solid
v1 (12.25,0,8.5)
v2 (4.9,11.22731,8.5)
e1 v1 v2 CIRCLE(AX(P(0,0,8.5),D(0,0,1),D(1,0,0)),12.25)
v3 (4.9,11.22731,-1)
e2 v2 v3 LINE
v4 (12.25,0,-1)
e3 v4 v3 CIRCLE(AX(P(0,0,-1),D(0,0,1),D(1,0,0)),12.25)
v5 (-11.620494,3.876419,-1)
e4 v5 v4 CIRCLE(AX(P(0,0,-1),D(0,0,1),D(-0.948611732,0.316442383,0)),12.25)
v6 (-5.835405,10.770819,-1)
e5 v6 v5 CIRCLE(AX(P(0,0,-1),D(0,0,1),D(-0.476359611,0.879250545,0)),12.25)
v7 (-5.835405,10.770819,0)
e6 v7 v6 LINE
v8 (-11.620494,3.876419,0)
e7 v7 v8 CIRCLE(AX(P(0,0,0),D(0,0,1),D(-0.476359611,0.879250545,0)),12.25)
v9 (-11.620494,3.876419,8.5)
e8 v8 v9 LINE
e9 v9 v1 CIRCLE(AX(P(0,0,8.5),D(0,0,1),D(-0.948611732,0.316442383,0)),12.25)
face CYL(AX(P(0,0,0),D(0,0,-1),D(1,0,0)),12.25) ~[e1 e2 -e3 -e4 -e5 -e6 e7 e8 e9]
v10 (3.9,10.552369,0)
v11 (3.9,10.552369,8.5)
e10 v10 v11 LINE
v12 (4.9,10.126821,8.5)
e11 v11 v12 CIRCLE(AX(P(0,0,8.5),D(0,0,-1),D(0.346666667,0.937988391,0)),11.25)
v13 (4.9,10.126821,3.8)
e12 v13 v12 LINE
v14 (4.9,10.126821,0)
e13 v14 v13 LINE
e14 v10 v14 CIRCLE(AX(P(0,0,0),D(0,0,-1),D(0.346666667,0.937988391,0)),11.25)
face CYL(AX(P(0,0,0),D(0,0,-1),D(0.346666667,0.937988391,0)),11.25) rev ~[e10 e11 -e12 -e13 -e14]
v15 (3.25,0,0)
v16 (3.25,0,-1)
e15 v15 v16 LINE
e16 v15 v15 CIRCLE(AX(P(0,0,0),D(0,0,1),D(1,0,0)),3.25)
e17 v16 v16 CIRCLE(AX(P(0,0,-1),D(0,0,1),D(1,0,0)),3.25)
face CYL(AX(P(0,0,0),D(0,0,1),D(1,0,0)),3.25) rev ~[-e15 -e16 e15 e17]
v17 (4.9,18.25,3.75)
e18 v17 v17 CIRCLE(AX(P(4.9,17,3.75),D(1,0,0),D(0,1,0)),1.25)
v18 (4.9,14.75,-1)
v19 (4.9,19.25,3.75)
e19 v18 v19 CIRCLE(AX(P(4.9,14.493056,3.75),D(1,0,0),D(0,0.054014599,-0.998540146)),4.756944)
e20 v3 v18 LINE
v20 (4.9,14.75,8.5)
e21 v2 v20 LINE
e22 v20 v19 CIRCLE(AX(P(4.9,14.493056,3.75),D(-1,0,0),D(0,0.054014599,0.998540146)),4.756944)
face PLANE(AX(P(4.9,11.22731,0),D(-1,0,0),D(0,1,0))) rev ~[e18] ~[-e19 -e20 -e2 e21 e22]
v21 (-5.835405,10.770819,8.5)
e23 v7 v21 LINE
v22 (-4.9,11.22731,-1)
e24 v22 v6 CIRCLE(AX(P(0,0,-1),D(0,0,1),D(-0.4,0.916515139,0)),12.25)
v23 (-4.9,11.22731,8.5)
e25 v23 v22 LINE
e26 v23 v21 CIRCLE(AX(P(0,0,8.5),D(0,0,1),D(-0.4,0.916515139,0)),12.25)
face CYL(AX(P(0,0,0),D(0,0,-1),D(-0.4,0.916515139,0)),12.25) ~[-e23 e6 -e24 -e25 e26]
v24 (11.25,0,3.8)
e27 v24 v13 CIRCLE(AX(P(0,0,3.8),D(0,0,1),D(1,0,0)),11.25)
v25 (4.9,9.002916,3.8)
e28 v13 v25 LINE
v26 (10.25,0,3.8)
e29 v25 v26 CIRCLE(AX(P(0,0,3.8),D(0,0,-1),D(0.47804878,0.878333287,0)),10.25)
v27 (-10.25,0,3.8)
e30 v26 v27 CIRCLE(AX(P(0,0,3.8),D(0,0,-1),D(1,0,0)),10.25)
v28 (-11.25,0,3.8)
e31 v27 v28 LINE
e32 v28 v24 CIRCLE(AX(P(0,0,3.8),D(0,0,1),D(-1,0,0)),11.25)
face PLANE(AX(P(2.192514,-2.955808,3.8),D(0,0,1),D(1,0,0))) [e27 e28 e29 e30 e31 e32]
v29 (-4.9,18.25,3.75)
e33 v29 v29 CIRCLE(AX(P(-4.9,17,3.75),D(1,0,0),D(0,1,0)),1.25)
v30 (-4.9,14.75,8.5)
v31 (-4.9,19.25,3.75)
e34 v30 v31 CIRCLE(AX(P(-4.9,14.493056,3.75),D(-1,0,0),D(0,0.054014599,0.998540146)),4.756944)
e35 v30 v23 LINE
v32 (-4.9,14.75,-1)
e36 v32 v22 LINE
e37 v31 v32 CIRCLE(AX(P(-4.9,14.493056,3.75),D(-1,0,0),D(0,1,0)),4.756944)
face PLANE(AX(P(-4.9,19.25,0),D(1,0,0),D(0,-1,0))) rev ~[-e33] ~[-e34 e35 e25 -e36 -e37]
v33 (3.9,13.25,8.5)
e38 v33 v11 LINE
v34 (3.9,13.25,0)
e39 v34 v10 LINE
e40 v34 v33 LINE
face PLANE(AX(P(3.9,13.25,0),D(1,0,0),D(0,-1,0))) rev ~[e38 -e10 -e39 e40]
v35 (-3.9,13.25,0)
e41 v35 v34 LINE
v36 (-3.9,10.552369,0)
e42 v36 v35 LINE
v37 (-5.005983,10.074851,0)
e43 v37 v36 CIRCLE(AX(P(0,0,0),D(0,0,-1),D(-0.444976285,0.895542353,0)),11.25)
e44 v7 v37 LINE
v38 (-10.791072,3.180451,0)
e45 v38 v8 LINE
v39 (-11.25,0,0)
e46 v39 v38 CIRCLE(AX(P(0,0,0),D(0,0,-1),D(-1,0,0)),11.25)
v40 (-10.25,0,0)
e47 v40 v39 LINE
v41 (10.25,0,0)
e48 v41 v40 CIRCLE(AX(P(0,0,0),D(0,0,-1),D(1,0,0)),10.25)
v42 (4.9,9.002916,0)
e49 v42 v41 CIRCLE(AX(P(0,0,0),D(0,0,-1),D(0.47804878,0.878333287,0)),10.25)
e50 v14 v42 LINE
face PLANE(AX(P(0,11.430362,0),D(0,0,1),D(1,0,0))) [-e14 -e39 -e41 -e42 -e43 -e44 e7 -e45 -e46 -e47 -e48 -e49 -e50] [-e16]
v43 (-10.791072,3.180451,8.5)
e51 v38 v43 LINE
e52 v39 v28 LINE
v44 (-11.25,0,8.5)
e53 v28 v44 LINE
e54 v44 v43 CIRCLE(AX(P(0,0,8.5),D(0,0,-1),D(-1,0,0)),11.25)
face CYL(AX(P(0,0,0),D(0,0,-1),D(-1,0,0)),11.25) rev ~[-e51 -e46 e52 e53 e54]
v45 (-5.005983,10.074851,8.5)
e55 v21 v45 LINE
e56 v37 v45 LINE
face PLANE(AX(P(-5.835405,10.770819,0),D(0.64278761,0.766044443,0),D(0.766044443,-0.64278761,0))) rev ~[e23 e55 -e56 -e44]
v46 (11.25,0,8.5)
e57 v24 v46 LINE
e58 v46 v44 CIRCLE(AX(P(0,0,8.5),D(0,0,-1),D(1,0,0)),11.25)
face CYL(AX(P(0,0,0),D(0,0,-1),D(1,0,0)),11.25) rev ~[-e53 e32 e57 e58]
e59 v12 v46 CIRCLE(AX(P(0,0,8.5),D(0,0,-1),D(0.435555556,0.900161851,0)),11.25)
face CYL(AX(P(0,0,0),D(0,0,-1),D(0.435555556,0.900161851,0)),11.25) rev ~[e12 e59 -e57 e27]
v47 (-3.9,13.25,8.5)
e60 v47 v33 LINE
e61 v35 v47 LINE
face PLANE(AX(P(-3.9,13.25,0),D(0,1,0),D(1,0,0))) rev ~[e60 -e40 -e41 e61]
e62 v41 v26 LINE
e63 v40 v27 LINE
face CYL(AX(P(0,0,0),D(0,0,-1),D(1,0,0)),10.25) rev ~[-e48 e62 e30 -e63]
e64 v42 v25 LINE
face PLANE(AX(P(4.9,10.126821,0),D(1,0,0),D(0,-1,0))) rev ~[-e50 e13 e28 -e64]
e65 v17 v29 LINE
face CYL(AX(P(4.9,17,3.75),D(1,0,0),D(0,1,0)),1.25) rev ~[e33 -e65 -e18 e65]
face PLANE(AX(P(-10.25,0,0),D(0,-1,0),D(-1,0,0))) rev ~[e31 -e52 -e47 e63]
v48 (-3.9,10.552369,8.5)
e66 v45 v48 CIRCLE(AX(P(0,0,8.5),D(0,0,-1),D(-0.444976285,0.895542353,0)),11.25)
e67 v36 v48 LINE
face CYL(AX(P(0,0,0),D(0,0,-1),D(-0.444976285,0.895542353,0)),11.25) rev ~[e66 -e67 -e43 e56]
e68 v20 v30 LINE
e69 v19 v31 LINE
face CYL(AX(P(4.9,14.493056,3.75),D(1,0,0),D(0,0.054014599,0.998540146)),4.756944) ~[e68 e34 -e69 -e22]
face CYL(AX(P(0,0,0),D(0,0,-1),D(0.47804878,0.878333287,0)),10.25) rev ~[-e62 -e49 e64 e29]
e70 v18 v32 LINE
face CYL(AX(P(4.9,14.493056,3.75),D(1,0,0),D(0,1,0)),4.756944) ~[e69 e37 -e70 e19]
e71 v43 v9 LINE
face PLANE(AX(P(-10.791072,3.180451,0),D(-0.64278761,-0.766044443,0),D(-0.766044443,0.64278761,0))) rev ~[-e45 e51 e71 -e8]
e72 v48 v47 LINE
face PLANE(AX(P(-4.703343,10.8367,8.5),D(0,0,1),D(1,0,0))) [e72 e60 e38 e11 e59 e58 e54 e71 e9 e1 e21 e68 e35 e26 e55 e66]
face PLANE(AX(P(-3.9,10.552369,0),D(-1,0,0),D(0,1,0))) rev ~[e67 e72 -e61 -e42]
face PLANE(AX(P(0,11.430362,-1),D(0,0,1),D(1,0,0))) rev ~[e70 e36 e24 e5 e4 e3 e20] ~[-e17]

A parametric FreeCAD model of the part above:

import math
import FreeCAD as App
import Part
import Sketcher
Q = App.Units.Quantity

doc = App.newDocument("Part")
body = doc.addObject("PartDesign::Body", "Body")

sketch1 = doc.addObject("Sketcher::SketchObject", "Sketch")
body.addObject(sketch1)
sketch1.AttachmentSupport = (doc.XY_Plane, [""])
sketch1.MapMode = "FlatFace"
sketch1.addGeometry(Part.ArcOfCircle(Part.Circle(App.Vector(0, 0, 0), App.Vector(0, 0, 1), 12.2), math.radians(162), math.radians(360)), False)
sketch1.addGeometry(Part.ArcOfCircle(Part.Circle(App.Vector(0, 0, 0), App.Vector(0, 0, 1), 12.2), math.radians(0), math.radians(66)), False)
sketch1.addGeometry(Part.LineSegment(App.Vector(4.9, 11.2, 0), App.Vector(4.9, 19.2, 0)), False)
sketch1.addGeometry(Part.LineSegment(App.Vector(4.9, 19.2, 0), App.Vector(-4.9, 19.2, 0)), False)
sketch1.addGeometry(Part.LineSegment(App.Vector(-4.9, 19.2, 0), App.Vector(-4.9, 11.2, 0)), False)
sketch1.addGeometry(Part.ArcOfCircle(Part.Circle(App.Vector(0, 0, 0), App.Vector(0, 0, 1), 12.2), math.radians(113.58), math.radians(118.45)), False)
sketch1.addGeometry(Part.ArcOfCircle(Part.Circle(App.Vector(0, 0, 0), App.Vector(0, 0, 1), 12.2), math.radians(118), math.radians(162)), False)
sketch1.addGeometry(Part.Circle(App.Vector(0, 0, 0), App.Vector(0, 0, 1), 3.2), False)
sketch1.addConstraint(Sketcher.Constraint("Tangent", 0, 2, 1, 1))
sketch1.addConstraint(Sketcher.Constraint("Coincident", 1, 2, 2, 1))
sketch1.addConstraint(Sketcher.Constraint("Coincident", 2, 2, 3, 1))
sketch1.addConstraint(Sketcher.Constraint("Coincident", 3, 2, 4, 1))
sketch1.addConstraint(Sketcher.Constraint("Coincident", 4, 2, 5, 1))
sketch1.addConstraint(Sketcher.Constraint("Tangent", 5, 2, 6, 1))
sketch1.addConstraint(Sketcher.Constraint("Tangent", 6, 2, 0, 1))
sketch1.addConstraint(Sketcher.Constraint("Vertical", 2))
sketch1.addConstraint(Sketcher.Constraint("Horizontal", 3))
sketch1.addConstraint(Sketcher.Constraint("Vertical", 4))
sketch1.addConstraint(Sketcher.Constraint("Coincident", 0, 3, -1, 1))
sketch1.addConstraint(Sketcher.Constraint("Coincident", 5, 3, -1, 1))
sketch1.addConstraint(Sketcher.Constraint("Coincident", 7, 3, -1, 1))
sketch1.addConstraint(Sketcher.Constraint("Equal", 0, 1))
sketch1.addConstraint(Sketcher.Constraint("PointOnObject", 0, 2, -1))
sketch1.addConstraint(Sketcher.Constraint("Horizontal", 1, 2, 4, 2))
sketch1.addConstraint(Sketcher.Constraint("Diameter", 7, Q("6.5 mm")))
sketch1.addConstraint(Sketcher.Constraint("Radius", 0, Q("12.25 mm")))
sketch1.addConstraint(Sketcher.Constraint("DistanceX", 3, 2, 3, 1, Q("9.8 mm")))
sketch1.addConstraint(Sketcher.Constraint("DistanceY", -1, 1, 2, 2, Q("19.25 mm")))
sketch1.addConstraint(Sketcher.Constraint("DistanceY", 6, 2, 5, 2, Q("6.8944 mm")))
sketch1.addConstraint(Sketcher.Constraint("DistanceY", -1, 1, 5, 2, Q("10.770819 mm")))
pad1 = doc.addObject("PartDesign::Pad", "Pad")
body.addObject(pad1)
pad1.Profile = sketch1
pad1.Length = 1
pad1.Reversed = True

sketch2 = doc.addObject("Sketcher::SketchObject", "Sketch001")
body.addObject(sketch2)
sketch2.AttachmentSupport = (doc.XY_Plane, [""])
sketch2.MapMode = "FlatFace"
sketch2.addGeometry(Part.ArcOfCircle(Part.Circle(App.Vector(0, 0, 0), App.Vector(0, 0, 1), 11.3), math.radians(110.28), math.radians(116.42)), False)
sketch2.addGeometry(Part.LineSegment(App.Vector(-3.9, 10.6, 0), App.Vector(-3.9, 13.2, 0)), False)
sketch2.addGeometry(Part.LineSegment(App.Vector(-3.9, 13.2, 0), App.Vector(3.9, 13.2, 0)), False)
sketch2.addGeometry(Part.LineSegment(App.Vector(3.9, 13.2, 0), App.Vector(3.9, 10.6, 0)), False)
sketch2.addGeometry(Part.ArcOfCircle(Part.Circle(App.Vector(0, 0, 0), App.Vector(0, 0, 1), 11.3), math.radians(64.18), math.radians(69.72)), False)
sketch2.addGeometry(Part.ArcOfCircle(Part.Circle(App.Vector(0, 0, 0), App.Vector(0, 0, 1), 11.2), math.radians(0), math.radians(64)), False)
sketch2.addGeometry(Part.ArcOfCircle(Part.Circle(App.Vector(0, 0, 0), App.Vector(0, 0, 1), 11.2), math.radians(180), math.radians(360)), False)
sketch2.addGeometry(Part.ArcOfCircle(Part.Circle(App.Vector(0, 0, 0), App.Vector(0, 0, 1), 11.2), math.radians(163.58), math.radians(180)), False)
sketch2.addGeometry(Part.LineSegment(App.Vector(-10.8, 3.2, 0), App.Vector(-11.6, 3.9, 0)), False)
sketch2.addGeometry(Part.ArcOfCircle(Part.Circle(App.Vector(0, 0, 0), App.Vector(0, 0, 1), 12.2), math.radians(162), math.radians(360)), False)
sketch2.addGeometry(Part.ArcOfCircle(Part.Circle(App.Vector(0, 0, 0), App.Vector(0, 0, 1), 12.2), math.radians(0), math.radians(66)), False)
sketch2.addGeometry(Part.LineSegment(App.Vector(4.9, 11.2, 0), App.Vector(4.9, 19.2, 0)), False)
sketch2.addGeometry(Part.LineSegment(App.Vector(4.9, 19.2, 0), App.Vector(-4.9, 19.2, 0)), False)
sketch2.addGeometry(Part.LineSegment(App.Vector(-4.9, 19.2, 0), App.Vector(-4.9, 11.2, 0)), False)
sketch2.addGeometry(Part.ArcOfCircle(Part.Circle(App.Vector(0, 0, 0), App.Vector(0, 0, 1), 12.2), math.radians(113.58), math.radians(118.45)), False)
sketch2.addGeometry(Part.LineSegment(App.Vector(-5.8, 10.8, 0), App.Vector(-5, 10.1, 0)), False)
sketch2.addConstraint(Sketcher.Constraint("Coincident", 0, 1, 1, 1))
sketch2.addConstraint(Sketcher.Constraint("Coincident", 1, 2, 2, 1))
sketch2.addConstraint(Sketcher.Constraint("Coincident", 2, 2, 3, 1))
sketch2.addConstraint(Sketcher.Constraint("Coincident", 3, 2, 4, 2))
sketch2.addConstraint(Sketcher.Constraint("Tangent", 4, 1, 5, 2))
sketch2.addConstraint(Sketcher.Constraint("Tangent", 5, 1, 6, 2))
sketch2.addConstraint(Sketcher.Constraint("Tangent", 6, 1, 7, 2))
sketch2.addConstraint(Sketcher.Constraint("Coincident", 7, 1, 8, 1))
sketch2.addConstraint(Sketcher.Constraint("Coincident", 8, 2, 9, 1))
sketch2.addConstraint(Sketcher.Constraint("Tangent", 9, 2, 10, 1))
sketch2.addConstraint(Sketcher.Constraint("Coincident", 10, 2, 11, 1))
sketch2.addConstraint(Sketcher.Constraint("Coincident", 11, 2, 12, 1))
sketch2.addConstraint(Sketcher.Constraint("Coincident", 12, 2, 13, 1))
sketch2.addConstraint(Sketcher.Constraint("Coincident", 13, 2, 14, 1))
sketch2.addConstraint(Sketcher.Constraint("Coincident", 14, 2, 15, 1))
sketch2.addConstraint(Sketcher.Constraint("Coincident", 15, 2, 0, 2))
sketch2.addConstraint(Sketcher.Constraint("Vertical", 1))
sketch2.addConstraint(Sketcher.Constraint("Horizontal", 2))
sketch2.addConstraint(Sketcher.Constraint("Vertical", 3))
sketch2.addConstraint(Sketcher.Constraint("Vertical", 11))
sketch2.addConstraint(Sketcher.Constraint("Horizontal", 12))
sketch2.addConstraint(Sketcher.Constraint("Vertical", 13))
sketch2.addConstraint(Sketcher.Constraint("Coincident", 0, 3, -1, 1))
sketch2.addConstraint(Sketcher.Constraint("Coincident", 4, 3, -1, 1))
sketch2.addConstraint(Sketcher.Constraint("Coincident", 6, 3, -1, 1))
sketch2.addConstraint(Sketcher.Constraint("Coincident", 9, 3, -1, 1))
sketch2.addConstraint(Sketcher.Constraint("Coincident", 14, 3, -1, 1))
sketch2.addConstraint(Sketcher.Constraint("Equal", 0, 4))
sketch2.addConstraint(Sketcher.Constraint("Equal", 6, 7))
sketch2.addConstraint(Sketcher.Constraint("Equal", 9, 10))
sketch2.addConstraint(Sketcher.Constraint("Equal", 10, 14))
sketch2.addConstraint(Sketcher.Constraint("PointOnObject", 5, 1, -1))
sketch2.addConstraint(Sketcher.Constraint("PointOnObject", 6, 1, -1))
sketch2.addConstraint(Sketcher.Constraint("PointOnObject", 9, 2, -1))
sketch2.addConstraint(Sketcher.Constraint("Parallel", 8, 15))
sketch2.addConstraint(Sketcher.Constraint("Horizontal", 0, 1, 3, 2))
sketch2.addConstraint(Sketcher.Constraint("Horizontal", 10, 2, 13, 2))
sketch2.addConstraint(Sketcher.Constraint("Vertical", 4, 1, 10, 2))
sketch2.addConstraint(Sketcher.Constraint("Equal", 8, 15))
sketch2.addConstraint(Sketcher.Constraint("Angle", 8, Q("140 deg")))
sketch2.addConstraint(Sketcher.Constraint("Radius", 0, Q("11.25 mm")))
sketch2.addConstraint(Sketcher.Constraint("Radius", 9, Q("12.25 mm")))
sketch2.addConstraint(Sketcher.Constraint("DistanceX", 2, 1, 2, 2, Q("7.8 mm")))
sketch2.addConstraint(Sketcher.Constraint("DistanceX", 12, 2, 12, 1, Q("9.8 mm")))
sketch2.addConstraint(Sketcher.Constraint("DistanceY", 2, 2, 11, 2, Q("6 mm")))
sketch2.addConstraint(Sketcher.Constraint("DistanceY", -1, 1, 1, 2, Q("13.25 mm")))
sketch2.addConstraint(Sketcher.Constraint("DistanceY", 8, 2, 14, 2, Q("6.8944 mm")))
pad2 = doc.addObject("PartDesign::Pad", "Pad001")
body.addObject(pad2)
pad2.Profile = sketch2
pad2.Length = 8.5

sketch3 = doc.addObject("Sketcher::SketchObject", "Sketch002")
body.addObject(sketch3)
sketch3.AttachmentSupport = (doc.XY_Plane, [""])
sketch3.MapMode = "FlatFace"
sketch3.addGeometry(Part.ArcOfCircle(Part.Circle(App.Vector(0, 0, 0), App.Vector(0, 0, 1), 11.2), math.radians(180), math.radians(360)), False)
sketch3.addGeometry(Part.ArcOfCircle(Part.Circle(App.Vector(0, 0, 0), App.Vector(0, 0, 1), 11.2), math.radians(0), math.radians(64)), False)
sketch3.addGeometry(Part.LineSegment(App.Vector(4.9, 10.1, 0), App.Vector(4.9, 9, 0)), False)
sketch3.addGeometry(Part.ArcOfCircle(Part.Circle(App.Vector(0, 0, 0), App.Vector(0, 0, 1), 10.2), math.radians(0), math.radians(61)), False)
sketch3.addGeometry(Part.ArcOfCircle(Part.Circle(App.Vector(0, 0, 0), App.Vector(0, 0, 1), 10.2), math.radians(180), math.radians(360)), False)
sketch3.addGeometry(Part.LineSegment(App.Vector(-10.2, 0, 0), App.Vector(-11.2, 0, 0)), False)
sketch3.addConstraint(Sketcher.Constraint("Tangent", 0, 2, 1, 1))
sketch3.addConstraint(Sketcher.Constraint("Coincident", 1, 2, 2, 1))
sketch3.addConstraint(Sketcher.Constraint("Coincident", 2, 2, 3, 2))
sketch3.addConstraint(Sketcher.Constraint("Tangent", 3, 1, 4, 2))
sketch3.addConstraint(Sketcher.Constraint("Coincident", 4, 1, 5, 1))
sketch3.addConstraint(Sketcher.Constraint("Coincident", 5, 2, 0, 1))
sketch3.addConstraint(Sketcher.Constraint("Vertical", 2))
sketch3.addConstraint(Sketcher.Constraint("Horizontal", 5))
sketch3.addConstraint(Sketcher.Constraint("Coincident", 0, 3, -1, 1))
sketch3.addConstraint(Sketcher.Constraint("Coincident", 3, 3, -1, 1))
sketch3.addConstraint(Sketcher.Constraint("Equal", 0, 1))
sketch3.addConstraint(Sketcher.Constraint("Equal", 3, 4))
sketch3.addConstraint(Sketcher.Constraint("PointOnObject", 0, 2, -1))
sketch3.addConstraint(Sketcher.Constraint("PointOnObject", 3, 1, -1))
sketch3.addConstraint(Sketcher.Constraint("PointOnObject", 4, 1, -1))
sketch3.addConstraint(Sketcher.Constraint("DistanceX", 5, 2, 5, 1, Q("1 mm")))
sketch3.addConstraint(Sketcher.Constraint("Radius", 0, Q("11.25 mm")))
sketch3.addConstraint(Sketcher.Constraint("DistanceX", -1, 1, 1, 2, Q("4.9 mm")))
pad3 = doc.addObject("PartDesign::Pad", "Pad002")
body.addObject(pad3)
pad3.Profile = sketch3
pad3.Length = 3.8

sketch4 = doc.addObject("Sketcher::SketchObject", "Sketch003")
body.addObject(sketch4)
sketch4.AttachmentSupport = (doc.YZ_Plane, [""])
sketch4.MapMode = "FlatFace"
sketch4.AttachmentOffset = App.Placement(App.Vector(0, 0, 4.9), App.Rotation())
sketch4.addGeometry(Part.ArcOfCircle(Part.Circle(App.Vector(14.5, 3.8, 0), App.Vector(0, 0, 1), 4.8), math.radians(0), math.radians(87)), False)
sketch4.addGeometry(Part.LineSegment(App.Vector(19.2, 3.8, 0), App.Vector(19.2, 8.5, 0)), False)
sketch4.addGeometry(Part.LineSegment(App.Vector(19.2, 8.5, 0), App.Vector(14.8, 8.5, 0)), False)
sketch4.addGeometry(Part.ArcOfCircle(Part.Circle(App.Vector(14.5, 3.8, 0), App.Vector(0, 0, 1), 4.8), math.radians(-87), math.radians(0)), False)
sketch4.addGeometry(Part.LineSegment(App.Vector(14.8, -1, 0), App.Vector(19.2, -1, 0)), False)
sketch4.addGeometry(Part.LineSegment(App.Vector(19.2, -1, 0), App.Vector(19.2, 3.8, 0)), False)
sketch4.addGeometry(Part.Circle(App.Vector(17, 3.8, 0), App.Vector(0, 0, 1), 1.2), False)
sketch4.addConstraint(Sketcher.Constraint("Tangent", 0, 1, 1, 1))
sketch4.addConstraint(Sketcher.Constraint("Coincident", 1, 2, 2, 1))
sketch4.addConstraint(Sketcher.Constraint("Coincident", 2, 2, 0, 2))
sketch4.addConstraint(Sketcher.Constraint("Coincident", 3, 1, 4, 1))
sketch4.addConstraint(Sketcher.Constraint("Coincident", 4, 2, 5, 1))
sketch4.addConstraint(Sketcher.Constraint("Tangent", 5, 2, 3, 2))
sketch4.addConstraint(Sketcher.Constraint("Vertical", 1))
sketch4.addConstraint(Sketcher.Constraint("Horizontal", 2))
sketch4.addConstraint(Sketcher.Constraint("Horizontal", 4))
sketch4.addConstraint(Sketcher.Constraint("Vertical", 5))
sketch4.addConstraint(Sketcher.Constraint("Coincident", 3, 3, 0, 3))
sketch4.addConstraint(Sketcher.Constraint("Equal", 0, 3))
sketch4.addConstraint(Sketcher.Constraint("Horizontal", 3, 3, 6, 3))
sketch4.addConstraint(Sketcher.Constraint("Vertical", 2, 2, 3, 1))
sketch4.addConstraint(Sketcher.Constraint("Diameter", 6, Q("2.5 mm")))
sketch4.addConstraint(Sketcher.Constraint("DistanceX", 2, 2, 2, 1, Q("4.5 mm")))
sketch4.addConstraint(Sketcher.Constraint("DistanceX", -1, 1, 6, 3, Q("17 mm")))
sketch4.addConstraint(Sketcher.Constraint("DistanceY", 3, 1, -1, 1, Q("1 mm")))
sketch4.addConstraint(Sketcher.Constraint("DistanceY", 1, 1, 1, 2, Q("4.75 mm")))
sketch4.addConstraint(Sketcher.Constraint("DistanceX", -1, 1, 0, 1, Q("19.25 mm")))
pocket1 = doc.addObject("PartDesign::Pocket", "Pocket")
body.addObject(pocket1)
pocket1.Profile = sketch4
pocket1.Type = "ThroughAll"

doc.recompute()
